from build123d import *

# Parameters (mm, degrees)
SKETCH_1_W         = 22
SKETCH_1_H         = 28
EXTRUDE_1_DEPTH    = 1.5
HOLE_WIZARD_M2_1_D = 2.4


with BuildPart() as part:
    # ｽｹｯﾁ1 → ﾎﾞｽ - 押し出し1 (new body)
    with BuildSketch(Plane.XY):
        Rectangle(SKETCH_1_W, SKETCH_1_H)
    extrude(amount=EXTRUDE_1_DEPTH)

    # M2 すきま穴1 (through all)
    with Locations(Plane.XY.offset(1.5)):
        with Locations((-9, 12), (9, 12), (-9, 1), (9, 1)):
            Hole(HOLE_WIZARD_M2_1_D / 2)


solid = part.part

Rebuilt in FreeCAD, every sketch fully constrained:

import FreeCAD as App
import Part
import Sketcher

V = App.Vector

doc = App.newDocument("Part")
body = doc.addObject("PartDesign::Body", "Body")

# Sketch on XY plane
sketch1 = doc.addObject("Sketcher::SketchObject", "Sketch")
body.addObject(sketch1)
sketch1.AttachmentSupport = (doc.XY_Plane, [""])
sketch1.MapMode = "FlatFace"
sketch1.addGeometry([
    Part.LineSegment(V(-11, 14, 0), V(-11, -14, 0)),
    Part.LineSegment(V(-11, -14, 0), V(11, -14, 0)),
    Part.LineSegment(V(11, -14, 0), V(11, 14, 0)),
    Part.LineSegment(V(11, 14, 0), V(-11, 14, 0)),
], False)
sketch1.addConstraint([
    Sketcher.Constraint("Coincident", 0, 2, 1, 1),
    Sketcher.Constraint("Coincident", 1, 2, 2, 1),
    Sketcher.Constraint("Coincident", 2, 2, 3, 1),
    Sketcher.Constraint("Coincident", 3, 2, 0, 1),
    Sketcher.Constraint("Vertical", 0),
    Sketcher.Constraint("Horizontal", 1),
    Sketcher.Constraint("Vertical", 2),
    Sketcher.Constraint("Horizontal", 3),
    Sketcher.Constraint("Symmetric", 0, 2, 2, 2, -1, 1),
    Sketcher.Constraint("DistanceX", 1, 1, 1, 2, 22.0),
    Sketcher.Constraint("DistanceY", 0, 2, 0, 1, 28.0),
])
pad1 = doc.addObject("PartDesign::Pad", "Pad")
body.addObject(pad1)
pad1.Profile = sketch1
pad1.Length = 1.5

# Sketch on XY plane
sketch2 = doc.addObject("Sketcher::SketchObject", "Sketch001")
body.addObject(sketch2)
sketch2.AttachmentSupport = (doc.XY_Plane, [""])
sketch2.MapMode = "FlatFace"
sketch2.AttachmentOffset = App.Placement(V(0, 0, 1.5), App.Rotation())
sketch2.addGeometry([
    Part.Circle(V(-9, 12, 0), V(0, 0, 1), 1.2),
    Part.Circle(V(9, 12, 0), V(0, 0, 1), 1.2),
    Part.Circle(V(-9, 1, 0), V(0, 0, 1), 1.2),
    Part.Circle(V(9, 1, 0), V(0, 0, 1), 1.2),
], False)
sketch2.addConstraint([
    Sketcher.Constraint("Equal", 0, 1),
    Sketcher.Constraint("Equal", 1, 2),
    Sketcher.Constraint("Equal", 2, 3),
    Sketcher.Constraint("Symmetric", 0, 3, 1, 3, -2),
    Sketcher.Constraint("Symmetric", 2, 3, 3, 3, -2),
    Sketcher.Constraint("Vertical", 0, 3, 2, 3),
    Sketcher.Constraint("Diameter", 0, 2.4),
    Sketcher.Constraint("DistanceX", 0, 3, -1, 1, 9.0),
    Sketcher.Constraint("DistanceY", -1, 1, 0, 3, 12.0),
    Sketcher.Constraint("DistanceY", -1, 1, 2, 3, 1.0),
])
doc.recompute()
hole = doc.addObject("PartDesign::Hole", "Hole")
body.addObject(hole)
hole.Profile = sketch2
hole.ThreadType = "None"
hole.Diameter = 2.4
hole.DepthType = "ThroughAll"

doc.recompute()
